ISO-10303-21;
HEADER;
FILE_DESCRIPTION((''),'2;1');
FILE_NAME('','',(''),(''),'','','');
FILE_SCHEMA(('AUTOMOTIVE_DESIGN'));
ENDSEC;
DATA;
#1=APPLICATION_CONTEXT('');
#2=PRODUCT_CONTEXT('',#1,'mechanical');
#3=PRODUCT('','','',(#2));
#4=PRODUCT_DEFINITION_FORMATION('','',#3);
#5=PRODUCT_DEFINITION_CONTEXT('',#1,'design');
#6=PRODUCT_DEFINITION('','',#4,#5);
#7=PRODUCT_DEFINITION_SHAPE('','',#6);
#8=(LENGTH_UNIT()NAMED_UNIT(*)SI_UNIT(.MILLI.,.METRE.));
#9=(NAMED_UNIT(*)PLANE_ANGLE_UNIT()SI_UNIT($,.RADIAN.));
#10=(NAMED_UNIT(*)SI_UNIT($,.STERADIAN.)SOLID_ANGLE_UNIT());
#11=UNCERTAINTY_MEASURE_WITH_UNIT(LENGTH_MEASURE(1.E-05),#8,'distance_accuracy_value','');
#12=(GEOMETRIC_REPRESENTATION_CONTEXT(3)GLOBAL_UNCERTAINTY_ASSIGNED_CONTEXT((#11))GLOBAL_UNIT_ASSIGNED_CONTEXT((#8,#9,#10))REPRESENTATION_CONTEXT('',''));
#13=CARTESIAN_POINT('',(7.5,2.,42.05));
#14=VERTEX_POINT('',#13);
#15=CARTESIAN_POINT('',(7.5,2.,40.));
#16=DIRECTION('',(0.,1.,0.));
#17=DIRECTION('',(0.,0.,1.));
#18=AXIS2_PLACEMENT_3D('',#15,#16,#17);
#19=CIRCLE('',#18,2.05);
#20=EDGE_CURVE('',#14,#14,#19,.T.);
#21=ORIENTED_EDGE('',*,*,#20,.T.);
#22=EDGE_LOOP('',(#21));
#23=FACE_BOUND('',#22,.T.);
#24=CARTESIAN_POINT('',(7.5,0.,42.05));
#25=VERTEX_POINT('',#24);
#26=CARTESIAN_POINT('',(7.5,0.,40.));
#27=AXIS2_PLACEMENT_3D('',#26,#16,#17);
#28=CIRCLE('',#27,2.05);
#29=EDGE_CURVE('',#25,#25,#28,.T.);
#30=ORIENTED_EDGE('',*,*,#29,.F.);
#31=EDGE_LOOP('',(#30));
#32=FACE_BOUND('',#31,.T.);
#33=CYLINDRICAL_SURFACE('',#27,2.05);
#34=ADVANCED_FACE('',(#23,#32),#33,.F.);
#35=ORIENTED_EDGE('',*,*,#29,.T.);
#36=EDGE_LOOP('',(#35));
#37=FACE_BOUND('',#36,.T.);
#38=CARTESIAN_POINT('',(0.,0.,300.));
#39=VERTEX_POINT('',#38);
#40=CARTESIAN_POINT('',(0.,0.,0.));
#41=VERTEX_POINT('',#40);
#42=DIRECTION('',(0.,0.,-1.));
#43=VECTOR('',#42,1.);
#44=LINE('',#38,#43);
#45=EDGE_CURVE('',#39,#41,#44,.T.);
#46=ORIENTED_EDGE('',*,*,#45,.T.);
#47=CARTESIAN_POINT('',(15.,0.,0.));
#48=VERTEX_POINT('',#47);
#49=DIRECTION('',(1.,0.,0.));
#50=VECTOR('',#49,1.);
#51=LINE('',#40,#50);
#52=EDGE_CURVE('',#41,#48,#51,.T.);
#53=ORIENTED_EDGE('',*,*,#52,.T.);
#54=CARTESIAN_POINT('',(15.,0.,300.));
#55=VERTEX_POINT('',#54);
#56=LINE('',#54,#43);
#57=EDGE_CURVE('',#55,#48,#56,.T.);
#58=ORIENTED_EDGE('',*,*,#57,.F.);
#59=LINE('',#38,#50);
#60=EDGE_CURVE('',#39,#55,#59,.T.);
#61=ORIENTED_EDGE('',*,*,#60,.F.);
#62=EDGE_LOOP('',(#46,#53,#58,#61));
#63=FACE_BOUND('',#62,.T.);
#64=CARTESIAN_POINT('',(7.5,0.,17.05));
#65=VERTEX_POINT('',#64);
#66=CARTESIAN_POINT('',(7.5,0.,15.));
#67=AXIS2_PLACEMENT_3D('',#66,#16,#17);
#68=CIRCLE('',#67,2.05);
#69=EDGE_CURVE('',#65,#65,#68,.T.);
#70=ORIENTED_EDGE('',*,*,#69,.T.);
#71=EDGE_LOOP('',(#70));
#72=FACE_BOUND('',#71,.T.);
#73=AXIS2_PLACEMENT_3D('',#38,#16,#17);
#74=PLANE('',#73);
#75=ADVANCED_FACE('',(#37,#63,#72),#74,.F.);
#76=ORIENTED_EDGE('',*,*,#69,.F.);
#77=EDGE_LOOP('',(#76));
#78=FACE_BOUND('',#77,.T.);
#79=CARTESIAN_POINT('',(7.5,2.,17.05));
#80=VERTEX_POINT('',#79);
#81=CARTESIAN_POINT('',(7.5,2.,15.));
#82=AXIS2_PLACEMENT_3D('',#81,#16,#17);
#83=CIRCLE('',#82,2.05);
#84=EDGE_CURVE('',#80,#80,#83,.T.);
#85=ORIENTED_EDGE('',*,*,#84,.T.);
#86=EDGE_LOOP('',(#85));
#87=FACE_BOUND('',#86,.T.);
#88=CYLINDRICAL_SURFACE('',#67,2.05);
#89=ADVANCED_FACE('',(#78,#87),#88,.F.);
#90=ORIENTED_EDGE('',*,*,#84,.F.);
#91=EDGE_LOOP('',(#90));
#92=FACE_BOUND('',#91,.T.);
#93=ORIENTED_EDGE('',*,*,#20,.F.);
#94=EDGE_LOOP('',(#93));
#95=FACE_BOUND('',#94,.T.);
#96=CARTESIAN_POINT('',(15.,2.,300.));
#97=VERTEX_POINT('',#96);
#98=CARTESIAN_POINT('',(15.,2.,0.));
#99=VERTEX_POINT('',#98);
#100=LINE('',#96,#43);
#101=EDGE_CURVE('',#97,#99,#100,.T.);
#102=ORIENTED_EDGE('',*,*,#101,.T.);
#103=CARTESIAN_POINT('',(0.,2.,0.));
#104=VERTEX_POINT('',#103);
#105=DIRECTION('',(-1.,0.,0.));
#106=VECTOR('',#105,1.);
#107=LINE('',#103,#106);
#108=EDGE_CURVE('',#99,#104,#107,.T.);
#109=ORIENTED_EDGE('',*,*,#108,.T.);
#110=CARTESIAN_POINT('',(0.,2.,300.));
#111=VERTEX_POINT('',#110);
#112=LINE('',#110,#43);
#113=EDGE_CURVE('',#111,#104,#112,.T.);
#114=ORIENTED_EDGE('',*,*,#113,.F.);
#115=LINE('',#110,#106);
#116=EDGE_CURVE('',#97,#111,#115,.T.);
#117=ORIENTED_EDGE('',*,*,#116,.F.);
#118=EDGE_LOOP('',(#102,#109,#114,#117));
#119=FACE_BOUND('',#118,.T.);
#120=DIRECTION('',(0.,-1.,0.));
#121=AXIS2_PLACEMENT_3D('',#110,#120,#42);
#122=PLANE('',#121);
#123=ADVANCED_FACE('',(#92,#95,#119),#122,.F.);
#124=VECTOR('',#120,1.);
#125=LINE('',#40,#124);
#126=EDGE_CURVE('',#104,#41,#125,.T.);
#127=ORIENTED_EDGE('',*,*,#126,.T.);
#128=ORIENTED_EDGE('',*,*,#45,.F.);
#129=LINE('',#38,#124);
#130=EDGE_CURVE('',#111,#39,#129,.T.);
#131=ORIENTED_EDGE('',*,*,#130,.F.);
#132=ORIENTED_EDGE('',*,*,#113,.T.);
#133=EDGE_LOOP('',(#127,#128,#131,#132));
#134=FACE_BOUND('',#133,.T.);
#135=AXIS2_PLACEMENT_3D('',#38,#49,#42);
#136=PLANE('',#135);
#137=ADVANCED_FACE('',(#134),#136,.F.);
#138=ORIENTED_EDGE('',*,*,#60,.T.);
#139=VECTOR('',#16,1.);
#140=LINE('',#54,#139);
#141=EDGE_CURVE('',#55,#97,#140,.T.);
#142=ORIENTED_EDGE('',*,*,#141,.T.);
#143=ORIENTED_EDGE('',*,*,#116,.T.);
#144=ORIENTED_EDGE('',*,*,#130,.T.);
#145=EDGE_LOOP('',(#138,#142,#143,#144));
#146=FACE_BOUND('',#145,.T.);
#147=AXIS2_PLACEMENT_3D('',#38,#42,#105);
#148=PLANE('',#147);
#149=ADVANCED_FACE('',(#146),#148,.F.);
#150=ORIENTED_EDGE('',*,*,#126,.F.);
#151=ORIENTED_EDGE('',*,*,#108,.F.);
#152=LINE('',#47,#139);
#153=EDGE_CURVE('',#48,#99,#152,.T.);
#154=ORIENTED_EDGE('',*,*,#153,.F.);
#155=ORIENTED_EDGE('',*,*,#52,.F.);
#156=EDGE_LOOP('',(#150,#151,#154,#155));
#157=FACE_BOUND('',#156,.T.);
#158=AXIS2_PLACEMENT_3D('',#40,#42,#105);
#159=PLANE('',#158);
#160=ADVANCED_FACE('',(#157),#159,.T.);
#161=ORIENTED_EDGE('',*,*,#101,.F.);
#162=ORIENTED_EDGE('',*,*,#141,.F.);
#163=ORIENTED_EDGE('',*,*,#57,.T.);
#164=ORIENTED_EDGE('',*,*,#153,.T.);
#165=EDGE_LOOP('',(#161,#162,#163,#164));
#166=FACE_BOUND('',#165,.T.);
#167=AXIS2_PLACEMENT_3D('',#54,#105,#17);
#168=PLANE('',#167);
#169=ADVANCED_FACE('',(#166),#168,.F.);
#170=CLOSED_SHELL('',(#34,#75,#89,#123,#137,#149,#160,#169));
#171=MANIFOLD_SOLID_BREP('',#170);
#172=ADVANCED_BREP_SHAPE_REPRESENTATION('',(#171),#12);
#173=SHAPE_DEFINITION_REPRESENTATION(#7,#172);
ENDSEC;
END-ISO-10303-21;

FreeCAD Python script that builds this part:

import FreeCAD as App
import Part
import Sketcher

V = App.Vector
Q = App.Units.Quantity

doc = App.newDocument("Part")
params = doc.addObject("Spreadsheet::Sheet", "Params")
for row, (alias, value) in enumerate([
    ("sketch1_width", "15 mm"),
    ("sketch1_height", "2 mm"),
    ("pad1_length", "300 mm"),
    ("sketch2_diameter", "4.1 mm"),
], start=1):
    params.set(f"A{row}", alias)
    params.set(f"B{row}", "=" + value)
    params.setAlias(f"B{row}", alias)

body = doc.addObject("PartDesign::Body", "Body")

# Sketch on XY plane
sketch1 = doc.addObject("Sketcher::SketchObject", "Sketch")
body.addObject(sketch1)
sketch1.AttachmentSupport = (doc.XY_Plane, [""])
sketch1.MapMode = "FlatFace"
sketch1.addGeometry([
    Part.LineSegment(V(0, 2, 0), V(0, 0, 0)),
    Part.LineSegment(V(0, 0, 0), V(15, 0, 0)),
    Part.LineSegment(V(15, 0, 0), V(15, 2, 0)),
    Part.LineSegment(V(15, 2, 0), V(0, 2, 0)),
], False)
sketch1.addConstraint([
    Sketcher.Constraint("Coincident", 0, 2, 1, 1),
    Sketcher.Constraint("Coincident", 1, 2, 2, 1),
    Sketcher.Constraint("Coincident", 2, 2, 3, 1),
    Sketcher.Constraint("Coincident", 3, 2, 0, 1),
    Sketcher.Constraint("Vertical", 0),
    Sketcher.Constraint("Horizontal", 1),
    Sketcher.Constraint("Vertical", 2),
    Sketcher.Constraint("Horizontal", 3),
    Sketcher.Constraint("Coincident", 0, 2, -1, 1),
    Sketcher.Constraint("DistanceX", 1, 1, 1, 2, Q("15 mm")),
    Sketcher.Constraint("DistanceY", 0, 2, 0, 1, Q("2 mm")),
])
sketch1.setExpression("Constraints[9]", "Params.sketch1_width")
sketch1.setExpression("Constraints[10]", "Params.sketch1_height")
pad1 = doc.addObject("PartDesign::Pad", "Pad")
body.addObject(pad1)
pad1.Profile = sketch1
pad1.setExpression("Length", "Params.pad1_length")

# Sketch on XZ plane
sketch2 = doc.addObject("Sketcher::SketchObject", "Sketch001")
body.addObject(sketch2)
sketch2.AttachmentSupport = (doc.XZ_Plane, [""])
sketch2.MapMode = "FlatFace"
sketch2.AttachmentOffset = App.Placement(V(0, 0, -2), App.Rotation())
sketch2.addGeometry([
    Part.Circle(V(7.5, 15, 0), V(0, 0, 1), 2),
    Part.Circle(V(7.5, 40, 0), V(0, 0, 1), 2),
], False)
sketch2.addConstraint([
    Sketcher.Constraint("Equal", 0, 1),
    Sketcher.Constraint("Vertical", 0, 3, 1, 3),
    Sketcher.Constraint("Diameter", 0, Q("4.1 mm")),
    Sketcher.Constraint("DistanceY", -1, 1, 0, 3, Q("15 mm")),
    Sketcher.Constraint("DistanceY", -1, 1, 1, 3, Q("40 mm")),
    Sketcher.Constraint("DistanceX", -1, 1, 0, 3, Q("7.5 mm")),
])
sketch2.setExpression("Constraints[2]", "Params.sketch2_diameter")
pocket1 = doc.addObject("PartDesign::Pocket", "Pocket")
body.addObject(pocket1)
pocket1.Profile = sketch2
pocket1.Type = "ThroughAll"
pocket1.Reversed = True

doc.recompute()
